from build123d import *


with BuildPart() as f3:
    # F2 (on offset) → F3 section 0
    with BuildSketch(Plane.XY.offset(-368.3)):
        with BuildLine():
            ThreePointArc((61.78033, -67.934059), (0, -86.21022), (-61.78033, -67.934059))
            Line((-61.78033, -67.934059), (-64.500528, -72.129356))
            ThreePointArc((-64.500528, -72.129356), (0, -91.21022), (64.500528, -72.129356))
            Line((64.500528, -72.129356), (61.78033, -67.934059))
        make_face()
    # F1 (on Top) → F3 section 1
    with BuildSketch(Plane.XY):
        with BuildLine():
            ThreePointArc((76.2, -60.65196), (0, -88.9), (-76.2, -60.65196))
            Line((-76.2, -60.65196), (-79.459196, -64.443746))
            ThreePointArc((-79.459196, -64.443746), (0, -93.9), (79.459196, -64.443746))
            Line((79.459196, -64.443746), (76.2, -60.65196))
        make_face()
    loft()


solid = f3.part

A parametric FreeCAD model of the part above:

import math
import FreeCAD as App
import Part
import Sketcher

doc = App.newDocument("Part")
body = doc.addObject("PartDesign::Body", "Body")

# Sketch on XY plane
sketch1 = body.newObject("Sketcher::SketchObject", "Sketch")
sketch1.AttachmentSupport = (doc.getObject("XY_Plane"), [""])
sketch1.MapMode = "FlatFace"
sketch1.AttachmentOffset = App.Placement(App.Vector(0, 0, -368.3), App.Rotation())
sketch1.addGeometry([
    Part.ArcOfCircle(Part.Circle(App.Vector(0, 27.3, 0), App.Vector(0, 0, 1), 113.6), math.radians(-123), math.radians(-57)),
    Part.LineSegment(App.Vector(-61.8, -67.9, 0), App.Vector(-64.5, -72.1, 0)),
    Part.ArcOfCircle(Part.Circle(App.Vector(0, 27.3, 0), App.Vector(0, 0, 1), 118.6), math.radians(-123), math.radians(-57)),
    Part.LineSegment(App.Vector(64.5, -72.1, 0), App.Vector(61.8, -67.9, 0)),
], False)
sketch1.addConstraint([
    Sketcher.Constraint("Coincident", 0, 1, 1, 1),
    Sketcher.Constraint("Coincident", 1, 2, 2, 1),
    Sketcher.Constraint("Coincident", 2, 2, 3, 1),
    Sketcher.Constraint("Coincident", 3, 2, 0, 2),
    Sketcher.Constraint("Coincident", 2, 3, 0, 3),
    Sketcher.Constraint("Symmetric", 1, 2, 2, 2, -2),
    Sketcher.Constraint("Horizontal", 0, 1, 3, 2),
    Sketcher.Constraint("Distance", 1, 4.999999),
    Sketcher.Constraint("Radius", 0, 113.55851),
    Sketcher.Constraint("DistanceX", 3, 2, 2, 2, 2.720198),
    Sketcher.Constraint("DistanceY", -1, 1, 0, 3, 27.34829),
    Sketcher.Constraint("DistanceX", 0, 1, -1, 1, 61.78033),
])

# Sketch on XY plane
sketch2 = body.newObject("Sketcher::SketchObject", "Sketch001")
sketch2.AttachmentSupport = (doc.getObject("XY_Plane"), [""])
sketch2.MapMode = "FlatFace"
sketch2.addGeometry([
    Part.ArcOfCircle(Part.Circle(App.Vector(0, 28, 0), App.Vector(0, 0, 1), 116.9), math.radians(-131), math.radians(-49)),
    Part.LineSegment(App.Vector(-76.2, -60.7, 0), App.Vector(-79.5, -64.4, 0)),
    Part.ArcOfCircle(Part.Circle(App.Vector(0, 28, 0), App.Vector(0, 0, 1), 121.9), math.radians(-131), math.radians(-49)),
    Part.LineSegment(App.Vector(79.5, -64.4, 0), App.Vector(76.2, -60.7, 0)),
], False)
sketch2.addConstraint([
    Sketcher.Constraint("Coincident", 0, 1, 1, 1),
    Sketcher.Constraint("Coincident", 1, 2, 2, 1),
    Sketcher.Constraint("Coincident", 2, 2, 3, 1),
    Sketcher.Constraint("Coincident", 3, 2, 0, 2),
    Sketcher.Constraint("Coincident", 2, 3, 0, 3),
    Sketcher.Constraint("Symmetric", 1, 2, 2, 2, -2),
    Sketcher.Constraint("Horizontal", 0, 1, 3, 2),
    Sketcher.Constraint("Radius", 0, 116.9),
    Sketcher.Constraint("Radius", 2, 121.9),
    Sketcher.Constraint("DistanceY", -1, 1, 0, 3, 28.0),
    Sketcher.Constraint("DistanceX", 0, 1, -1, 1, 76.2),
    Sketcher.Constraint("DistanceX", 1, 2, 2, 2, 158.918392),
])

additiveloft = body.newObject("PartDesign::AdditiveLoft", "AdditiveLoft")
additiveloft.Profile = sketch1
additiveloft.Sections = [sketch2]

doc.recompute()
